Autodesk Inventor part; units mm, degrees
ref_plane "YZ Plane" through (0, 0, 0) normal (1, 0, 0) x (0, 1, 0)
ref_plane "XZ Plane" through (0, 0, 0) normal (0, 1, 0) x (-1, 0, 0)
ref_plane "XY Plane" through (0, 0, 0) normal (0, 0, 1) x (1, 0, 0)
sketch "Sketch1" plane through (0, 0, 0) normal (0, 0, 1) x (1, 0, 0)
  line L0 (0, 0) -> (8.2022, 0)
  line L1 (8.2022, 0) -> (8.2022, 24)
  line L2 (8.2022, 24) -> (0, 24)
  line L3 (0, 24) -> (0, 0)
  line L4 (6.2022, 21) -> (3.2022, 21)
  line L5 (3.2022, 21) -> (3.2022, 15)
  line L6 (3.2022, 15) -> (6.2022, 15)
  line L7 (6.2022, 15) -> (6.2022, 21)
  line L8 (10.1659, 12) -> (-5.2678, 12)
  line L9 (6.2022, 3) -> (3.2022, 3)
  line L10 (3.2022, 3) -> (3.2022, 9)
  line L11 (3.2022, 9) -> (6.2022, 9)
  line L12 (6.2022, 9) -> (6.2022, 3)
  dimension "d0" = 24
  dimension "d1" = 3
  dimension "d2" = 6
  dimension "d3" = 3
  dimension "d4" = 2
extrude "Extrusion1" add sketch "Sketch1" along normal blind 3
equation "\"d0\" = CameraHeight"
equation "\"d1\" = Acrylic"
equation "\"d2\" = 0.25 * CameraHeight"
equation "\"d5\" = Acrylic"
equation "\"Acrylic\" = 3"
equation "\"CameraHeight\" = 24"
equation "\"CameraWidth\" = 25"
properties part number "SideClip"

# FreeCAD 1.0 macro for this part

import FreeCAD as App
import Part
import Sketcher

V = App.Vector
Q = App.Units.Quantity


def add_polygon(sketch, points):
    """Adds a closed chain of lines whose ends are joined by coincident constraints."""
    first, n = sketch.GeometryCount, len(points)
    for a, b in zip(points, points[1:] + points[:1]):
        sketch.addGeometry(Part.LineSegment(App.Vector(*a, 0), App.Vector(*b, 0)), False)
    for i in range(n):
        sketch.addConstraint(Sketcher.Constraint("Coincident", first + i, 2, first + (i + 1) % n, 1))

doc = App.newDocument("Part")
params = doc.addObject("Spreadsheet::Sheet", "Params")
for row, (alias, value) in enumerate([
    ("sketch1_width", "3 mm"),
    ("sketch1_height", "24 mm"),
    ("sketch1_height2", "6 mm"),
    ("pad1_length", "3 mm"),
], start=1):
    params.set(f"A{row}", alias)
    params.set(f"B{row}", "=" + value)
    params.setAlias(f"B{row}", alias)

body = doc.addObject("PartDesign::Body", "Body")

# Sketch on XY plane
sketch1 = body.newObject("Sketcher::SketchObject", "Sketch")
sketch1.AttachmentSupport = (doc.getObject("XY_Plane"), [""])
sketch1.MapMode = "FlatFace"
add_polygon(sketch1, [(0, 0), (8.2022, 0), (8.2022, 24), (0, 24)])  # lines 0-3
add_polygon(sketch1, [(6.2022, 9), (6.2022, 3), (3.2022, 3), (3.2022, 9)])  # lines 4-7
add_polygon(sketch1, [(6.2022, 21), (6.2022, 15), (3.2022, 15), (3.2022, 21)])  # lines 8-11
sketch1.addConstraint(Sketcher.Constraint("Horizontal", 0))
sketch1.addConstraint(Sketcher.Constraint("Vertical", 1))
sketch1.addConstraint(Sketcher.Constraint("Horizontal", 2))
sketch1.addConstraint(Sketcher.Constraint("Vertical", 3))
sketch1.addConstraint(Sketcher.Constraint("Vertical", 4))
sketch1.addConstraint(Sketcher.Constraint("Horizontal", 5))
sketch1.addConstraint(Sketcher.Constraint("Vertical", 6))
sketch1.addConstraint(Sketcher.Constraint("Horizontal", 7))
sketch1.addConstraint(Sketcher.Constraint("Vertical", 8))
sketch1.addConstraint(Sketcher.Constraint("Horizontal", 9))
sketch1.addConstraint(Sketcher.Constraint("Vertical", 10))
sketch1.addConstraint(Sketcher.Constraint("Horizontal", 11))
sketch1.addConstraint(Sketcher.Constraint("Coincident", 3, 2, -1, 1))
sketch1.addConstraint(Sketcher.Constraint("Vertical", 7, 2, 8, 2))
sketch1.addConstraint(Sketcher.Constraint("Vertical", 6, 2, 9, 2))
sketch1.addConstraint(Sketcher.Constraint("Equal", 6, 8))
sketch1.addConstraint(Sketcher.Constraint("DistanceX", 5, 2, 5, 1, Q("3 mm")))
sketch1.addConstraint(Sketcher.Constraint("DistanceY", 1, 1, 1, 2, Q("24 mm")))
sketch1.addConstraint(Sketcher.Constraint("DistanceY", 4, 2, 4, 1, Q("6 mm")))
sketch1.addConstraint(Sketcher.Constraint("DistanceY", -1, 1, 4, 2, Q("3 mm")))
sketch1.addConstraint(Sketcher.Constraint("DistanceX", 4, 2, 0, 2, Q("2 mm")))
sketch1.addConstraint(Sketcher.Constraint("DistanceY", 7, 2, 8, 2, Q("6 mm")))
sketch1.addConstraint(Sketcher.Constraint("DistanceX", 0, 1, 0, 2, Q("8.2022 mm")))
sketch1.setExpression("Constraints[28]", "Params.sketch1_width")
sketch1.setExpression("Constraints[29]", "Params.sketch1_height")
sketch1.setExpression("Constraints[30]", "Params.sketch1_height2")
pad1 = body.newObject("PartDesign::Pad", "Pad")
pad1.Profile = sketch1
pad1.setExpression("Length", "Params.pad1_length")

doc.recompute()
